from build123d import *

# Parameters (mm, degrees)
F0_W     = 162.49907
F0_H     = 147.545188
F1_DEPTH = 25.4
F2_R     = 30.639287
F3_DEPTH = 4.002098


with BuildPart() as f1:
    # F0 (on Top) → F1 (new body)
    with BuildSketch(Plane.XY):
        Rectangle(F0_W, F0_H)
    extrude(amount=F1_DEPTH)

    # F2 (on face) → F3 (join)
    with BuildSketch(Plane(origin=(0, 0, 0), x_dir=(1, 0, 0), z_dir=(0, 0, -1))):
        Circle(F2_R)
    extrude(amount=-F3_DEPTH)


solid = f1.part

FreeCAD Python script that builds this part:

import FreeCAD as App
import Part
import Sketcher
Q = App.Units.Quantity

doc = App.newDocument("Part")
params = doc.addObject("Spreadsheet::Sheet", "Params")
for row, (alias, value) in enumerate([
    ("pad1_length", "1 in"),
    ("pad2_length", "4.002098 mm"),
], start=1):
    params.set(f"A{row}", alias)
    params.set(f"B{row}", "=" + value)
    params.setAlias(f"B{row}", alias)

body = doc.addObject("PartDesign::Body", "Body")

# Sketch on XY plane
sketch1 = body.newObject("Sketcher::SketchObject", "Sketch")
sketch1.AttachmentSupport = (doc.getObject("XY_Plane"), [""])
sketch1.MapMode = "FlatFace"
sketch1.addGeometry(Part.LineSegment(App.Vector(-81, 74, 0), App.Vector(-81, -74, 0)), False)
sketch1.addGeometry(Part.LineSegment(App.Vector(-81, -74, 0), App.Vector(81, -74, 0)), False)
sketch1.addGeometry(Part.LineSegment(App.Vector(81, -74, 0), App.Vector(81, 74, 0)), False)
sketch1.addGeometry(Part.LineSegment(App.Vector(81, 74, 0), App.Vector(-81, 74, 0)), False)
sketch1.addConstraint(Sketcher.Constraint("Coincident", 0, 2, 1, 1))
sketch1.addConstraint(Sketcher.Constraint("Coincident", 1, 2, 2, 1))
sketch1.addConstraint(Sketcher.Constraint("Coincident", 2, 2, 3, 1))
sketch1.addConstraint(Sketcher.Constraint("Coincident", 3, 2, 0, 1))
sketch1.addConstraint(Sketcher.Constraint("Vertical", 0))
sketch1.addConstraint(Sketcher.Constraint("Horizontal", 1))
sketch1.addConstraint(Sketcher.Constraint("Vertical", 2))
sketch1.addConstraint(Sketcher.Constraint("Horizontal", 3))
sketch1.addConstraint(Sketcher.Constraint("Symmetric", 0, 2, 2, 2, -1, 1))
sketch1.addConstraint(Sketcher.Constraint("DistanceX", 1, 1, 1, 2, Q("162.49907 mm")))
sketch1.addConstraint(Sketcher.Constraint("DistanceY", 0, 2, 0, 1, Q("147.545188 mm")))
pad1 = body.newObject("PartDesign::Pad", "Pad")
pad1.Profile = sketch1
pad1.setExpression("Length", "Params.pad1_length")

# Sketch on XY plane
sketch2 = body.newObject("Sketcher::SketchObject", "Sketch001")
sketch2.AttachmentSupport = (doc.getObject("XY_Plane"), [""])
sketch2.MapMode = "FlatFace"
sketch2.addGeometry(Part.Circle(App.Vector(0, 0, 0), App.Vector(0, 0, 1), 31), False)
sketch2.addConstraint(Sketcher.Constraint("Coincident", 0, 3, -1, 1))
sketch2.addConstraint(Sketcher.Constraint("Diameter", 0, Q("61.278574 mm")))
pad2 = body.newObject("PartDesign::Pad", "Pad001")
pad2.Profile = sketch2
pad2.setExpression("Length", "Params.pad2_length")

doc.recompute()
